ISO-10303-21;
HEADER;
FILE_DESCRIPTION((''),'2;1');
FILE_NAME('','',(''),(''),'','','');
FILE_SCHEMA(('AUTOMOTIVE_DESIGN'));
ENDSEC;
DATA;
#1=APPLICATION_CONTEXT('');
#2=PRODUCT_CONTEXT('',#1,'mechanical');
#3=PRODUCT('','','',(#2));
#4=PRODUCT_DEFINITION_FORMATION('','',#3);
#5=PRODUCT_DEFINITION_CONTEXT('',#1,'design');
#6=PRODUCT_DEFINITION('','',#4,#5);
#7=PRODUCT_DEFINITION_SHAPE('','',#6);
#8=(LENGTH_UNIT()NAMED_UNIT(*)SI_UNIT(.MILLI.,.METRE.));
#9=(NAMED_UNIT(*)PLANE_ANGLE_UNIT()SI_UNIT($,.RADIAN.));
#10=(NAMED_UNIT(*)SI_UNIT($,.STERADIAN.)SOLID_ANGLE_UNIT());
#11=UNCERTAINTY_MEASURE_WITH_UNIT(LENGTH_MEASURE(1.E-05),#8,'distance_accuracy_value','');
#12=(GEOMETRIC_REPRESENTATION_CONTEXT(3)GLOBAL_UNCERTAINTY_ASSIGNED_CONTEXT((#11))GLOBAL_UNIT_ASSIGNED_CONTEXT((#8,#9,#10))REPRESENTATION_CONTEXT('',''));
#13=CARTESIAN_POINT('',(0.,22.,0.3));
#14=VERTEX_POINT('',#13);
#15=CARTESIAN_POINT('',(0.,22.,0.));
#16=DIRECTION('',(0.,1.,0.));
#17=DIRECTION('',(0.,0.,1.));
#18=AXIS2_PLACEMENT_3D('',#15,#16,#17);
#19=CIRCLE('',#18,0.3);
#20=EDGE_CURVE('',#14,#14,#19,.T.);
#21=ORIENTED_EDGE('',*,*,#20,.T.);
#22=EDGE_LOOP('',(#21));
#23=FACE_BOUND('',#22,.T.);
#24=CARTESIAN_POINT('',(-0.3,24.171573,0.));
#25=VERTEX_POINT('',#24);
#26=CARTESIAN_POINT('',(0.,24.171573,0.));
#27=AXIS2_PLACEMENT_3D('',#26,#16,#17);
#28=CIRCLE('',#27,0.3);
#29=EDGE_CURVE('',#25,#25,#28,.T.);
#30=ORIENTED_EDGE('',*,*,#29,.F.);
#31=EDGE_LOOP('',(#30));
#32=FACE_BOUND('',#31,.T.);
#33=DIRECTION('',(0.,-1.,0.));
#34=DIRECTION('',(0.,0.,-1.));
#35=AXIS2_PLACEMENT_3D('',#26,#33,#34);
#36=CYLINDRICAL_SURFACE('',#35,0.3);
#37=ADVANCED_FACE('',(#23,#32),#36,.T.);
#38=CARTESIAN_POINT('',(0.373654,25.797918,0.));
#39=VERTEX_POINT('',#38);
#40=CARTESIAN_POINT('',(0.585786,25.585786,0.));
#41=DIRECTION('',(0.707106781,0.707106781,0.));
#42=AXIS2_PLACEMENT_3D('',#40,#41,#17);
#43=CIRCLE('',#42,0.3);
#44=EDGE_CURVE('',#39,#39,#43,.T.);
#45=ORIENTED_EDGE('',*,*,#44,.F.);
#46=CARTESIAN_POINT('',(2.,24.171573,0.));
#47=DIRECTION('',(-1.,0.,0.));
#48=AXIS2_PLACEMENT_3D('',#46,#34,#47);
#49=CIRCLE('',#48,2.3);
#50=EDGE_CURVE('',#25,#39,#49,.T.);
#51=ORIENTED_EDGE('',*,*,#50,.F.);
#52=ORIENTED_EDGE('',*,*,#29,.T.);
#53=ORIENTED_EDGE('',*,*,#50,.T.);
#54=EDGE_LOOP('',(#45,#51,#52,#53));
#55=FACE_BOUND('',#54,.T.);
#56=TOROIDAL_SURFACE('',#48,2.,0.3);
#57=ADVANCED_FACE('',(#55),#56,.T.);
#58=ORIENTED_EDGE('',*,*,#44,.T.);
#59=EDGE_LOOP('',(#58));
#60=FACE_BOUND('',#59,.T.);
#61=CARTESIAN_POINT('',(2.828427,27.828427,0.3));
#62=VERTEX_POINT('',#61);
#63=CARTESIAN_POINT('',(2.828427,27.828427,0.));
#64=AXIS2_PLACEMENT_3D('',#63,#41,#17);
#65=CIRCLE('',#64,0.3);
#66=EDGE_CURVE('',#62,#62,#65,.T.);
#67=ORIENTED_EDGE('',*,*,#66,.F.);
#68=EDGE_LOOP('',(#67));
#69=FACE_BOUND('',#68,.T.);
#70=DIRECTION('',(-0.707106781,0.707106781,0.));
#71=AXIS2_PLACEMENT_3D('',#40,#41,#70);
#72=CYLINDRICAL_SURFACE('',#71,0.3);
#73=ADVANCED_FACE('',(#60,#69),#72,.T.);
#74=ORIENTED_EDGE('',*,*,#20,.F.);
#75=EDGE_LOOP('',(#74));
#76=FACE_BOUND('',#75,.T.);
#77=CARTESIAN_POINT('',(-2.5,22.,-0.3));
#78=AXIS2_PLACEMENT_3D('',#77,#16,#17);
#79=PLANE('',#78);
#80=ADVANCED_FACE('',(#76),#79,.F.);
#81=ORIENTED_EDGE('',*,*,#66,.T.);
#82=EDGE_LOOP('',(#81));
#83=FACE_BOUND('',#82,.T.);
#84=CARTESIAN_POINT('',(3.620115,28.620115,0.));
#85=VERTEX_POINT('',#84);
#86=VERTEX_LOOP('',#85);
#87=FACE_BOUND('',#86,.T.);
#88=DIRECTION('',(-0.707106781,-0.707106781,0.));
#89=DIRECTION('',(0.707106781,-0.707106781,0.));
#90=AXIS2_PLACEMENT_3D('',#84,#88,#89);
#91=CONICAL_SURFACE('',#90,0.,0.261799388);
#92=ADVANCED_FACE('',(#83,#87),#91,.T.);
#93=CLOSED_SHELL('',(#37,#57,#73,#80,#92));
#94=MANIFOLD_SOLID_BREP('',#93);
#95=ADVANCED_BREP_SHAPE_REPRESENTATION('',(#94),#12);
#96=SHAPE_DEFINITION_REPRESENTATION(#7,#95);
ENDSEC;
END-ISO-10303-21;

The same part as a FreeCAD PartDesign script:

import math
import FreeCAD as App
import Part
import Sketcher
from FreeCAD import Vector
Q = App.Units.Quantity

doc = App.newDocument("Part")
params = doc.addObject("Spreadsheet::Sheet", "Params")
for row, (alias, value) in enumerate([
    ("sketch1_diameter", "0.6 mm"),
    ("sketch2_radius", "2 mm"),
    ("sketch3_length", "0.3 mm"),
    ("revolution_angle", "360 deg"),
    ("sketch4_width", "5 mm"),
    ("sketch4_height", "44 mm"),
], start=1):
    params.set(f"A{row}", alias)
    params.set(f"B{row}", "=" + value)
    params.setAlias(f"B{row}", alias)

body = doc.addObject("PartDesign::Body", "Body")

# Sketch on XZ plane
sketch1 = body.newObject("Sketcher::SketchObject", "Sketch")
sketch1.AttachmentSupport = (doc.getObject("XZ_Plane"), [""])
sketch1.MapMode = "FlatFace"
sketch1.addGeometry(Part.Circle(Vector(0, 0, 0), Vector(0, 0, 1), 0.3), False)
sketch1.addConstraint([
    Sketcher.Constraint("Coincident", 0, 3, -1, 1),
    Sketcher.Constraint("Diameter", 0, Q("0.6 mm")),
])
sketch1.setExpression("Constraints[1]", "Params.sketch1_diameter")

# Sketch on XY plane
sketch2 = body.newObject("Sketcher::SketchObject", "Sketch001")
sketch2.AttachmentSupport = (doc.getObject("XY_Plane"), [""])
sketch2.MapMode = "FlatFace"
sketch2.addGeometry([
    Part.LineSegment(Vector(0, 0, 0), Vector(0, 24.2, 0)),
    Part.ArcOfCircle(Part.Circle(Vector(2, 24.2, 0), Vector(0, 0, 1), 2), math.radians(135), math.radians(180)),
    Part.LineSegment(Vector(0.6, 25.6, 0), Vector(2.8, 27.8, 0)),
], False)
sketch2.addConstraint([
    Sketcher.Constraint("Tangent", 0, 2, 1, 2),
    Sketcher.Constraint("Tangent", 1, 1, 2, 1),
    Sketcher.Constraint("Vertical", 0),
    Sketcher.Constraint("Coincident", 0, 1, -1, 1),
    Sketcher.Constraint("Radius", 1, Q("2 mm")),
    Sketcher.Constraint("Angle", 2, Q("45 deg")),
    Sketcher.Constraint("DistanceY", 0, 1, 0, 2, Q("24.171573 mm")),
    Sketcher.Constraint("DistanceX", 1, 1, 2, 2, Q("2.242641 mm")),
])
sketch2.setExpression("Constraints[4]", "Params.sketch2_radius")
doc.recompute()

additivepipe = body.newObject("PartDesign::AdditivePipe", "AdditivePipe")
additivepipe.Profile = sketch1
additivepipe.Spine = (sketch2, ["Edge1", "Edge2", "Edge3"])

# Sketch on XY plane
sketch3 = body.newObject("Sketcher::SketchObject", "Sketch002")
sketch3.AttachmentSupport = (doc.getObject("XY_Plane"), [""])
sketch3.MapMode = "FlatFace"
sketch3.addGeometry([
    Part.LineSegment(Vector(3.62, 28.62, 0), Vector(2.62, 28.04, 0)),
    Part.LineSegment(Vector(2.62, 28.04, 0), Vector(2.83, 27.83, 0)),
    Part.LineSegment(Vector(2.83, 27.83, 0), Vector(3.62, 28.62, 0)),
], False)
sketch3.addGeometry(Part.LineSegment(Vector(2.83, 27.83, 0), Vector(3.62, 28.62, 0)), True)  # axis
sketch3.addConstraint([
    Sketcher.Constraint("Coincident", 0, 2, 1, 1),
    Sketcher.Constraint("Coincident", 1, 2, 2, 1),
    Sketcher.Constraint("Coincident", 2, 2, 0, 1),
    Sketcher.Constraint("Coincident", 3, 1, 1, 2),
    Sketcher.Constraint("Coincident", 3, 2, 2, 2),
    Sketcher.Constraint("Perpendicular", 1, 2),
    Sketcher.Constraint("Angle", 0, Q("-150 deg")),
    Sketcher.Constraint("Angle", 1, Q("-45 deg")),
    Sketcher.Constraint("Distance", 1, Q("0.3 mm")),
    Sketcher.Constraint("DistanceY", -1, 1, 0, 2, Q("28.040559 mm")),
    Sketcher.Constraint("DistanceX", -1, 1, 0, 2, Q("2.616295 mm")),
])
sketch3.setExpression("Constraints[8]", "Params.sketch3_length")
revolution = body.newObject("PartDesign::Revolution", "Revolution")
revolution.Profile = sketch3
revolution.ReferenceAxis = (sketch3, ["Axis0"])
revolution.setExpression("Angle", "Params.revolution_angle")

# Sketch on XY plane
sketch4 = body.newObject("Sketcher::SketchObject", "Sketch003")
sketch4.AttachmentSupport = (doc.getObject("XY_Plane"), [""])
sketch4.MapMode = "FlatFace"
sketch4.addGeometry([
    Part.LineSegment(Vector(-2, 22, 0), Vector(-2, -22, 0)),
    Part.LineSegment(Vector(-2, -22, 0), Vector(2, -22, 0)),
    Part.LineSegment(Vector(2, -22, 0), Vector(2, 22, 0)),
    Part.LineSegment(Vector(2, 22, 0), Vector(-2, 22, 0)),
], False)
sketch4.addConstraint([
    Sketcher.Constraint("Coincident", 0, 2, 1, 1),
    Sketcher.Constraint("Coincident", 1, 2, 2, 1),
    Sketcher.Constraint("Coincident", 2, 2, 3, 1),
    Sketcher.Constraint("Coincident", 3, 2, 0, 1),
    Sketcher.Constraint("Vertical", 0),
    Sketcher.Constraint("Horizontal", 1),
    Sketcher.Constraint("Vertical", 2),
    Sketcher.Constraint("Horizontal", 3),
    Sketcher.Constraint("Symmetric", 0, 2, 2, 2, -1, 1),
    Sketcher.Constraint("DistanceX", 1, 1, 1, 2, Q("5 mm")),
    Sketcher.Constraint("DistanceY", 0, 2, 0, 1, Q("44 mm")),
])
sketch4.setExpression("Constraints[9]", "Params.sketch4_width")
sketch4.setExpression("Constraints[10]", "Params.sketch4_height")
pocket1 = body.newObject("PartDesign::Pocket", "Pocket")
pocket1.Profile = sketch4
pocket1.Type = "ThroughAll"
pocket1.Midplane = True

doc.recompute()
